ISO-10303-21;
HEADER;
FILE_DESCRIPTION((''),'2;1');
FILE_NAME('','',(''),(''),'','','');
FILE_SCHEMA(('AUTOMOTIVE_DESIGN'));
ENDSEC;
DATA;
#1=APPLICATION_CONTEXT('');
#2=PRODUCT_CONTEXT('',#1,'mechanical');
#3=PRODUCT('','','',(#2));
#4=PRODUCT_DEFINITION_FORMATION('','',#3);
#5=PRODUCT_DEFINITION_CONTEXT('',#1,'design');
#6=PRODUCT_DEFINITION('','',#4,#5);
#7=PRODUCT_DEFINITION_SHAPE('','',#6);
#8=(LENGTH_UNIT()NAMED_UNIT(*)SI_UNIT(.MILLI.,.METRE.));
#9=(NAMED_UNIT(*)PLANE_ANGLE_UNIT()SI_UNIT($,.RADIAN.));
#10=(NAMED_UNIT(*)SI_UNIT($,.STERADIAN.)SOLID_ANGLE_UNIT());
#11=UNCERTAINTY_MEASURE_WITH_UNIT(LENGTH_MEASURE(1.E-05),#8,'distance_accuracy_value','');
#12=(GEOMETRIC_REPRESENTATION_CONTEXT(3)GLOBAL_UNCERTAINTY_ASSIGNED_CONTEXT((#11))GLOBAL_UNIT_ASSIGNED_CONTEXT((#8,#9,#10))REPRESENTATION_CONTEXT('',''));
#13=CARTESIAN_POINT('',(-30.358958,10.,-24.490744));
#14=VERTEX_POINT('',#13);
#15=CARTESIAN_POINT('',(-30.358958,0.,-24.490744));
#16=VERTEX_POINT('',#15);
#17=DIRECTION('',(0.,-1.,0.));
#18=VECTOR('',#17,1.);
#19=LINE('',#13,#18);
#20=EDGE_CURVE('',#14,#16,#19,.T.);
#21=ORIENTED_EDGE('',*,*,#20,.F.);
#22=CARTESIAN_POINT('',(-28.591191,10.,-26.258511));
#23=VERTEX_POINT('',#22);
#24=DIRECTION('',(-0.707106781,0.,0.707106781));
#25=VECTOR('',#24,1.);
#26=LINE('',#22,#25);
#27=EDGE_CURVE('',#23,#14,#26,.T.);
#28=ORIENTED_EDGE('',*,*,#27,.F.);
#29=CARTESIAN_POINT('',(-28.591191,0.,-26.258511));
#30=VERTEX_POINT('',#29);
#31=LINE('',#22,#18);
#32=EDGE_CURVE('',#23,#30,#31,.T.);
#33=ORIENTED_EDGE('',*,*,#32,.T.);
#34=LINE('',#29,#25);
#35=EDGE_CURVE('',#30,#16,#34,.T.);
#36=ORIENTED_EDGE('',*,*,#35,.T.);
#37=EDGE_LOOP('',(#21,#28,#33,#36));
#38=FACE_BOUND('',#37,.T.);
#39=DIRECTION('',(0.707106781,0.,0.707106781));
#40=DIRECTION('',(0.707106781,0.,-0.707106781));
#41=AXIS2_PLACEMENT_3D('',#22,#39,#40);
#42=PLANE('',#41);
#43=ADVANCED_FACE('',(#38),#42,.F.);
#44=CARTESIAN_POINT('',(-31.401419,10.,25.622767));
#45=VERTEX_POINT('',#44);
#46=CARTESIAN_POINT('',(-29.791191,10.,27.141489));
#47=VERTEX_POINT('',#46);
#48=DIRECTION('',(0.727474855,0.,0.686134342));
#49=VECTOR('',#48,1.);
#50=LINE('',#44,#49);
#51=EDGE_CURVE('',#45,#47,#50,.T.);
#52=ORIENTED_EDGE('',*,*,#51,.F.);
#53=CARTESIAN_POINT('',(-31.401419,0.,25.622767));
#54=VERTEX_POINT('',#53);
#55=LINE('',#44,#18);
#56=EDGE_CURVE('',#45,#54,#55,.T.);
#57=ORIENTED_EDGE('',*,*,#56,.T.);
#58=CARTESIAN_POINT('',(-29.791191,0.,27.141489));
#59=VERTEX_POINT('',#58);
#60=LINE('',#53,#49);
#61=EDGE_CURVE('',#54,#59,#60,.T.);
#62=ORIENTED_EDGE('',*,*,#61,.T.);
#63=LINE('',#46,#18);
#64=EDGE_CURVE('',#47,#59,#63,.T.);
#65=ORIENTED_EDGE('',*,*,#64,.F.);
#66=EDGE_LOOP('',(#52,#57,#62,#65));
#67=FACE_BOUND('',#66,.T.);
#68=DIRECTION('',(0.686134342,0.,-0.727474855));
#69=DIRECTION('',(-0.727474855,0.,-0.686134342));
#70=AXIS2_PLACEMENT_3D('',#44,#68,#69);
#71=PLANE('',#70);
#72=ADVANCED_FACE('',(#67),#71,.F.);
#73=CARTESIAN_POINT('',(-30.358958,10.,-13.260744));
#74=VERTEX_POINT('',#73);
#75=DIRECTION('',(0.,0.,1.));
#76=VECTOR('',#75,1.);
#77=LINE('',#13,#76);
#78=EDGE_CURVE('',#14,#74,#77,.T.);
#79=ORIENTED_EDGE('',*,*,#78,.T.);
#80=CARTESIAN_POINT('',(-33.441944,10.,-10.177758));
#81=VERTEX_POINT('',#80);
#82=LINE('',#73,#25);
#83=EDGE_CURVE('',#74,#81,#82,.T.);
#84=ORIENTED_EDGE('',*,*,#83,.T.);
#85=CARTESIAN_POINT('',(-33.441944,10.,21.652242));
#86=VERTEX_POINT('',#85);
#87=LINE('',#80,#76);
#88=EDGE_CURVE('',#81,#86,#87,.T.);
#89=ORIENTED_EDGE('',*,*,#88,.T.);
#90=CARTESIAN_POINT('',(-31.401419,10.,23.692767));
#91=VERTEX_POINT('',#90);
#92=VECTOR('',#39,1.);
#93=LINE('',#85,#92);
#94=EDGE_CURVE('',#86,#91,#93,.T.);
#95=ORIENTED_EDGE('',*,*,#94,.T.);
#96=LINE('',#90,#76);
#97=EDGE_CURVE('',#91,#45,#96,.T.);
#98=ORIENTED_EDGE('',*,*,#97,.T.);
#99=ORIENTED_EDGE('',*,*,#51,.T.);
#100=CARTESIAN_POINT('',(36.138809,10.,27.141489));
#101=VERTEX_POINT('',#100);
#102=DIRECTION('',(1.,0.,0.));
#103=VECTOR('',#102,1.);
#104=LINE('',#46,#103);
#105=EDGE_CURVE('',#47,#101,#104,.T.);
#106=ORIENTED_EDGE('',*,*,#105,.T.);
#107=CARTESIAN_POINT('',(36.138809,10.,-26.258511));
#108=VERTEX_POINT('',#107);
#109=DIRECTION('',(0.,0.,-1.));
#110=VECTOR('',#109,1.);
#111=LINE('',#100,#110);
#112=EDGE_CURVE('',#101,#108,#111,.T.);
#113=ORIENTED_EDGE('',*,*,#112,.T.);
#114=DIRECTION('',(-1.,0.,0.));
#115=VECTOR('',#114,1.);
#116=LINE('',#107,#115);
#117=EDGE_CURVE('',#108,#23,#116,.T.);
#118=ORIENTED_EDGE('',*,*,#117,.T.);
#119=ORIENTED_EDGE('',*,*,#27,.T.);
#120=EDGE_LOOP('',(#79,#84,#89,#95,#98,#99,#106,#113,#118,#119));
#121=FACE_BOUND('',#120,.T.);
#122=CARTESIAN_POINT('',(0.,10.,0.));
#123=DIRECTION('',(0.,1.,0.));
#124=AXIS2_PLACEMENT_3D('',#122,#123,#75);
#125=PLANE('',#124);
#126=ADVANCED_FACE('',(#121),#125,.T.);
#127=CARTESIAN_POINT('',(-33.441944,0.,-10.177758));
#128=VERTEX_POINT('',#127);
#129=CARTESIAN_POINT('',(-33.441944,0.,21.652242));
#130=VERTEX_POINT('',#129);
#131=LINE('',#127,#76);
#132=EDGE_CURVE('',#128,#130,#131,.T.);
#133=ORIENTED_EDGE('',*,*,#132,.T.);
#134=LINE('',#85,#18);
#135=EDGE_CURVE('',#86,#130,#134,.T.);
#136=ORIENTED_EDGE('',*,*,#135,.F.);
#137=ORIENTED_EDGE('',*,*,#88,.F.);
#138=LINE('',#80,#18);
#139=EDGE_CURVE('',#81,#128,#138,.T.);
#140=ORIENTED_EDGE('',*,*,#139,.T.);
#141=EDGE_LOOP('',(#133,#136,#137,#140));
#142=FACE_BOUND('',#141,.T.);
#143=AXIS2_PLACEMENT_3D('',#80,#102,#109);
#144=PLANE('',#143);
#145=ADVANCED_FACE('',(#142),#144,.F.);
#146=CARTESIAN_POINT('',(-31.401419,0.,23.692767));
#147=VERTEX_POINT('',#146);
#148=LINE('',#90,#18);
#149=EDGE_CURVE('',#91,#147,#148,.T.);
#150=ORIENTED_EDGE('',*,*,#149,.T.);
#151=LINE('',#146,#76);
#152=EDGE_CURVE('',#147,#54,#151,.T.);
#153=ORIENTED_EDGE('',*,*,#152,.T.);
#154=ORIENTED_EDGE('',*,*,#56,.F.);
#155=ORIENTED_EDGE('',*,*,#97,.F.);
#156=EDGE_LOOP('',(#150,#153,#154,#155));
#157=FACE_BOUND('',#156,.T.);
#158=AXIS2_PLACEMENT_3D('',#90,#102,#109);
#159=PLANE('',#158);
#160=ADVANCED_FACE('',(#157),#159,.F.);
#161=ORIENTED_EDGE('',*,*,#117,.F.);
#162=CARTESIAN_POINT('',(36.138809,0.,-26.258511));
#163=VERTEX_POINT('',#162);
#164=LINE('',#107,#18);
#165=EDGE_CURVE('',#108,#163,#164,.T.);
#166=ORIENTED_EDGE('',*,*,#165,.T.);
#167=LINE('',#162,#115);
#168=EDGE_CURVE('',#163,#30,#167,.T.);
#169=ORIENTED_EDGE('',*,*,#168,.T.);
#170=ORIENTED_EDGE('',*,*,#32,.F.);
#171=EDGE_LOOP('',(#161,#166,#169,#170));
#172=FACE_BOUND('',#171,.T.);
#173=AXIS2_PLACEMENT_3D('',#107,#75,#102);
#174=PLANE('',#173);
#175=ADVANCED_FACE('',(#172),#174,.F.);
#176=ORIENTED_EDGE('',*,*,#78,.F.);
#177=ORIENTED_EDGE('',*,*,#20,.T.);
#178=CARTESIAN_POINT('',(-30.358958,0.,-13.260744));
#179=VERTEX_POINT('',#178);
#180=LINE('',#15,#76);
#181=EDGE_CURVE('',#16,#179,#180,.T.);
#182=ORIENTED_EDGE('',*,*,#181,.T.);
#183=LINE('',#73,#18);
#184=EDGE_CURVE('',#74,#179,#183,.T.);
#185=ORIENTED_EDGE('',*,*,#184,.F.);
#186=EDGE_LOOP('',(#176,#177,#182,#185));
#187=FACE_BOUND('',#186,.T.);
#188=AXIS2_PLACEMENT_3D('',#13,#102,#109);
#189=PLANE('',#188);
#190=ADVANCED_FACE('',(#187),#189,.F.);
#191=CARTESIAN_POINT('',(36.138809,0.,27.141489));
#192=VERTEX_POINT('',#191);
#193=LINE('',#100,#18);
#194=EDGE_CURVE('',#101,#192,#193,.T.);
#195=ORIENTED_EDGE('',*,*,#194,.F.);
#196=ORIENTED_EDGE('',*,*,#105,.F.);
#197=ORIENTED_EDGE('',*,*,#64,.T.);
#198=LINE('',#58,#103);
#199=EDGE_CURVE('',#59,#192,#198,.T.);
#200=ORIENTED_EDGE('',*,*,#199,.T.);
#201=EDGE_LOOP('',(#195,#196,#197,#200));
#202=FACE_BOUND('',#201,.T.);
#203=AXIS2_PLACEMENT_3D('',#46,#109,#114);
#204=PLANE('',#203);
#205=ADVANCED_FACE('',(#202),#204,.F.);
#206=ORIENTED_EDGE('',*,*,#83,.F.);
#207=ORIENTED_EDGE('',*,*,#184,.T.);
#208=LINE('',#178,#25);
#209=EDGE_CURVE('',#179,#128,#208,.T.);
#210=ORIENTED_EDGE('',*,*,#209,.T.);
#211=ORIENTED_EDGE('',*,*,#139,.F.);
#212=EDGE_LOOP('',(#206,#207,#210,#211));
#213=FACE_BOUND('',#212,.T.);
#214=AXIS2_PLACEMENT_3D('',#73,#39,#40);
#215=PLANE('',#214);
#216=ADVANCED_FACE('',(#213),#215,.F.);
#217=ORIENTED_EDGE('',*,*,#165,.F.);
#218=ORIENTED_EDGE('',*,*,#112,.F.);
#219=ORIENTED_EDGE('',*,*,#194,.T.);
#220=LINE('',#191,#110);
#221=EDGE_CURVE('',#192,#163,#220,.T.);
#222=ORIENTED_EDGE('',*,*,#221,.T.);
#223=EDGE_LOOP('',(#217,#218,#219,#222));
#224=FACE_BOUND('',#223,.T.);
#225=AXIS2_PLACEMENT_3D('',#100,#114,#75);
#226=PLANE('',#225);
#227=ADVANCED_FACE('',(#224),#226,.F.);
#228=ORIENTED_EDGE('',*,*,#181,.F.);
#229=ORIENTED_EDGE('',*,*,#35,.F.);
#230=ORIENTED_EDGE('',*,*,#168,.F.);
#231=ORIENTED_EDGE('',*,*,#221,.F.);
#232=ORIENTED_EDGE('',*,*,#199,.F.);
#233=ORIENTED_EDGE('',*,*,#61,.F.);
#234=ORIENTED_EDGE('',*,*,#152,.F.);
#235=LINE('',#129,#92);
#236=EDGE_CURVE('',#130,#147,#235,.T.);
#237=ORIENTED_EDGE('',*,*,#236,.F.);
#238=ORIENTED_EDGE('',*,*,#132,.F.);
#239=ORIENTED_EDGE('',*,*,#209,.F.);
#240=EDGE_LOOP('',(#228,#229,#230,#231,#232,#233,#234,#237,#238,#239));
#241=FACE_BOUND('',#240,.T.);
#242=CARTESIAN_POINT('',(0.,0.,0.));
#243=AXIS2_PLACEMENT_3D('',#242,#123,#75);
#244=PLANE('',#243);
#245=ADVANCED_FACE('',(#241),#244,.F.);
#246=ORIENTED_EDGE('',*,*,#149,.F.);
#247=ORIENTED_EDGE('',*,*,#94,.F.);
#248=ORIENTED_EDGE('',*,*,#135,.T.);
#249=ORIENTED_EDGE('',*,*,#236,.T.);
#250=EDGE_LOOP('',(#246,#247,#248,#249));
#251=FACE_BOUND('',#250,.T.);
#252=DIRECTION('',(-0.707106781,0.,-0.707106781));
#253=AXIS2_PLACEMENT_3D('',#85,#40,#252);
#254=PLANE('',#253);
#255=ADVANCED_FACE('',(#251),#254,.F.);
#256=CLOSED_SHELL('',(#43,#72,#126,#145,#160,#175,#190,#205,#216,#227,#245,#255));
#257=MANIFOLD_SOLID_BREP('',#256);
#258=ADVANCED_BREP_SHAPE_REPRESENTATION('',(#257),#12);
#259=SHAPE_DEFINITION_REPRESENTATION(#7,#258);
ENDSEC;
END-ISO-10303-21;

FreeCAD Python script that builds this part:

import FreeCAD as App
import Part
import Sketcher

V = App.Vector
Q = App.Units.Quantity


def add_polygon(sketch, points):
    """Adds a closed chain of lines whose ends are joined by coincident constraints."""
    first, n = sketch.GeometryCount, len(points)
    for a, b in zip(points, points[1:] + points[:1]):
        sketch.addGeometry(Part.LineSegment(App.Vector(*a, 0), App.Vector(*b, 0)), False)
    for i in range(n):
        sketch.addConstraint(Sketcher.Constraint("Coincident", first + i, 2, first + (i + 1) % n, 1))

doc = App.newDocument("Part")
body = doc.addObject("PartDesign::Body", "Body")

# Sketch on XZ plane
sketch1 = body.newObject("Sketcher::SketchObject", "Sketch")
sketch1.AttachmentSupport = (doc.getObject("XZ_Plane"), [""])
sketch1.MapMode = "FlatFace"
add_polygon(sketch1, [(-28.6, -26.3), (-30.4, -24.5), (-30.4, -13.3), (-33.4, -10.2), (-33.4, 21.7), (-31.4, 23.7), (-31.4, 25.6), (-29.8, 27.1), (36.1, 27.1), (36.1, -26.3)])  # lines 0-9
sketch1.addConstraint([
    Sketcher.Constraint("Vertical", 1),
    Sketcher.Constraint("Vertical", 3),
    Sketcher.Constraint("Vertical", 5),
    Sketcher.Constraint("Horizontal", 7),
    Sketcher.Constraint("Vertical", 8),
    Sketcher.Constraint("Horizontal", 9),
    Sketcher.Constraint("Parallel", 0, 2),
    Sketcher.Constraint("Perpendicular", 2, 4),
    Sketcher.Constraint("Angle", 0, Q("135 deg")),
    Sketcher.Constraint("DistanceY", 8, 2, 8, 1, 53.4),
    Sketcher.Constraint("Distance", 0, 2.5),
    Sketcher.Constraint("DistanceX", 7, 1, 7, 2, 65.93),
    Sketcher.Constraint("DistanceX", 9, 2, 9, 1, 64.73),
    Sketcher.Constraint("DistanceY", 1, 1, 1, 2, 11.23),
    Sketcher.Constraint("DistanceY", 3, 1, 3, 2, 31.83),
    Sketcher.Constraint("DistanceY", 5, 1, 5, 2, 1.93),
    Sketcher.Constraint("Distance", 2, 4.36),
    Sketcher.Constraint("Distance", 4, 2.885739),
    Sketcher.Constraint("DistanceX", 0, 2, -1, 1, 30.358958),
    Sketcher.Constraint("DistanceY", 2, 2, -1, 1, 10.177758),
])
pad1 = body.newObject("PartDesign::Pad", "Pad")
pad1.Profile = sketch1
pad1.Length = 10
pad1.Reversed = True

doc.recompute()
